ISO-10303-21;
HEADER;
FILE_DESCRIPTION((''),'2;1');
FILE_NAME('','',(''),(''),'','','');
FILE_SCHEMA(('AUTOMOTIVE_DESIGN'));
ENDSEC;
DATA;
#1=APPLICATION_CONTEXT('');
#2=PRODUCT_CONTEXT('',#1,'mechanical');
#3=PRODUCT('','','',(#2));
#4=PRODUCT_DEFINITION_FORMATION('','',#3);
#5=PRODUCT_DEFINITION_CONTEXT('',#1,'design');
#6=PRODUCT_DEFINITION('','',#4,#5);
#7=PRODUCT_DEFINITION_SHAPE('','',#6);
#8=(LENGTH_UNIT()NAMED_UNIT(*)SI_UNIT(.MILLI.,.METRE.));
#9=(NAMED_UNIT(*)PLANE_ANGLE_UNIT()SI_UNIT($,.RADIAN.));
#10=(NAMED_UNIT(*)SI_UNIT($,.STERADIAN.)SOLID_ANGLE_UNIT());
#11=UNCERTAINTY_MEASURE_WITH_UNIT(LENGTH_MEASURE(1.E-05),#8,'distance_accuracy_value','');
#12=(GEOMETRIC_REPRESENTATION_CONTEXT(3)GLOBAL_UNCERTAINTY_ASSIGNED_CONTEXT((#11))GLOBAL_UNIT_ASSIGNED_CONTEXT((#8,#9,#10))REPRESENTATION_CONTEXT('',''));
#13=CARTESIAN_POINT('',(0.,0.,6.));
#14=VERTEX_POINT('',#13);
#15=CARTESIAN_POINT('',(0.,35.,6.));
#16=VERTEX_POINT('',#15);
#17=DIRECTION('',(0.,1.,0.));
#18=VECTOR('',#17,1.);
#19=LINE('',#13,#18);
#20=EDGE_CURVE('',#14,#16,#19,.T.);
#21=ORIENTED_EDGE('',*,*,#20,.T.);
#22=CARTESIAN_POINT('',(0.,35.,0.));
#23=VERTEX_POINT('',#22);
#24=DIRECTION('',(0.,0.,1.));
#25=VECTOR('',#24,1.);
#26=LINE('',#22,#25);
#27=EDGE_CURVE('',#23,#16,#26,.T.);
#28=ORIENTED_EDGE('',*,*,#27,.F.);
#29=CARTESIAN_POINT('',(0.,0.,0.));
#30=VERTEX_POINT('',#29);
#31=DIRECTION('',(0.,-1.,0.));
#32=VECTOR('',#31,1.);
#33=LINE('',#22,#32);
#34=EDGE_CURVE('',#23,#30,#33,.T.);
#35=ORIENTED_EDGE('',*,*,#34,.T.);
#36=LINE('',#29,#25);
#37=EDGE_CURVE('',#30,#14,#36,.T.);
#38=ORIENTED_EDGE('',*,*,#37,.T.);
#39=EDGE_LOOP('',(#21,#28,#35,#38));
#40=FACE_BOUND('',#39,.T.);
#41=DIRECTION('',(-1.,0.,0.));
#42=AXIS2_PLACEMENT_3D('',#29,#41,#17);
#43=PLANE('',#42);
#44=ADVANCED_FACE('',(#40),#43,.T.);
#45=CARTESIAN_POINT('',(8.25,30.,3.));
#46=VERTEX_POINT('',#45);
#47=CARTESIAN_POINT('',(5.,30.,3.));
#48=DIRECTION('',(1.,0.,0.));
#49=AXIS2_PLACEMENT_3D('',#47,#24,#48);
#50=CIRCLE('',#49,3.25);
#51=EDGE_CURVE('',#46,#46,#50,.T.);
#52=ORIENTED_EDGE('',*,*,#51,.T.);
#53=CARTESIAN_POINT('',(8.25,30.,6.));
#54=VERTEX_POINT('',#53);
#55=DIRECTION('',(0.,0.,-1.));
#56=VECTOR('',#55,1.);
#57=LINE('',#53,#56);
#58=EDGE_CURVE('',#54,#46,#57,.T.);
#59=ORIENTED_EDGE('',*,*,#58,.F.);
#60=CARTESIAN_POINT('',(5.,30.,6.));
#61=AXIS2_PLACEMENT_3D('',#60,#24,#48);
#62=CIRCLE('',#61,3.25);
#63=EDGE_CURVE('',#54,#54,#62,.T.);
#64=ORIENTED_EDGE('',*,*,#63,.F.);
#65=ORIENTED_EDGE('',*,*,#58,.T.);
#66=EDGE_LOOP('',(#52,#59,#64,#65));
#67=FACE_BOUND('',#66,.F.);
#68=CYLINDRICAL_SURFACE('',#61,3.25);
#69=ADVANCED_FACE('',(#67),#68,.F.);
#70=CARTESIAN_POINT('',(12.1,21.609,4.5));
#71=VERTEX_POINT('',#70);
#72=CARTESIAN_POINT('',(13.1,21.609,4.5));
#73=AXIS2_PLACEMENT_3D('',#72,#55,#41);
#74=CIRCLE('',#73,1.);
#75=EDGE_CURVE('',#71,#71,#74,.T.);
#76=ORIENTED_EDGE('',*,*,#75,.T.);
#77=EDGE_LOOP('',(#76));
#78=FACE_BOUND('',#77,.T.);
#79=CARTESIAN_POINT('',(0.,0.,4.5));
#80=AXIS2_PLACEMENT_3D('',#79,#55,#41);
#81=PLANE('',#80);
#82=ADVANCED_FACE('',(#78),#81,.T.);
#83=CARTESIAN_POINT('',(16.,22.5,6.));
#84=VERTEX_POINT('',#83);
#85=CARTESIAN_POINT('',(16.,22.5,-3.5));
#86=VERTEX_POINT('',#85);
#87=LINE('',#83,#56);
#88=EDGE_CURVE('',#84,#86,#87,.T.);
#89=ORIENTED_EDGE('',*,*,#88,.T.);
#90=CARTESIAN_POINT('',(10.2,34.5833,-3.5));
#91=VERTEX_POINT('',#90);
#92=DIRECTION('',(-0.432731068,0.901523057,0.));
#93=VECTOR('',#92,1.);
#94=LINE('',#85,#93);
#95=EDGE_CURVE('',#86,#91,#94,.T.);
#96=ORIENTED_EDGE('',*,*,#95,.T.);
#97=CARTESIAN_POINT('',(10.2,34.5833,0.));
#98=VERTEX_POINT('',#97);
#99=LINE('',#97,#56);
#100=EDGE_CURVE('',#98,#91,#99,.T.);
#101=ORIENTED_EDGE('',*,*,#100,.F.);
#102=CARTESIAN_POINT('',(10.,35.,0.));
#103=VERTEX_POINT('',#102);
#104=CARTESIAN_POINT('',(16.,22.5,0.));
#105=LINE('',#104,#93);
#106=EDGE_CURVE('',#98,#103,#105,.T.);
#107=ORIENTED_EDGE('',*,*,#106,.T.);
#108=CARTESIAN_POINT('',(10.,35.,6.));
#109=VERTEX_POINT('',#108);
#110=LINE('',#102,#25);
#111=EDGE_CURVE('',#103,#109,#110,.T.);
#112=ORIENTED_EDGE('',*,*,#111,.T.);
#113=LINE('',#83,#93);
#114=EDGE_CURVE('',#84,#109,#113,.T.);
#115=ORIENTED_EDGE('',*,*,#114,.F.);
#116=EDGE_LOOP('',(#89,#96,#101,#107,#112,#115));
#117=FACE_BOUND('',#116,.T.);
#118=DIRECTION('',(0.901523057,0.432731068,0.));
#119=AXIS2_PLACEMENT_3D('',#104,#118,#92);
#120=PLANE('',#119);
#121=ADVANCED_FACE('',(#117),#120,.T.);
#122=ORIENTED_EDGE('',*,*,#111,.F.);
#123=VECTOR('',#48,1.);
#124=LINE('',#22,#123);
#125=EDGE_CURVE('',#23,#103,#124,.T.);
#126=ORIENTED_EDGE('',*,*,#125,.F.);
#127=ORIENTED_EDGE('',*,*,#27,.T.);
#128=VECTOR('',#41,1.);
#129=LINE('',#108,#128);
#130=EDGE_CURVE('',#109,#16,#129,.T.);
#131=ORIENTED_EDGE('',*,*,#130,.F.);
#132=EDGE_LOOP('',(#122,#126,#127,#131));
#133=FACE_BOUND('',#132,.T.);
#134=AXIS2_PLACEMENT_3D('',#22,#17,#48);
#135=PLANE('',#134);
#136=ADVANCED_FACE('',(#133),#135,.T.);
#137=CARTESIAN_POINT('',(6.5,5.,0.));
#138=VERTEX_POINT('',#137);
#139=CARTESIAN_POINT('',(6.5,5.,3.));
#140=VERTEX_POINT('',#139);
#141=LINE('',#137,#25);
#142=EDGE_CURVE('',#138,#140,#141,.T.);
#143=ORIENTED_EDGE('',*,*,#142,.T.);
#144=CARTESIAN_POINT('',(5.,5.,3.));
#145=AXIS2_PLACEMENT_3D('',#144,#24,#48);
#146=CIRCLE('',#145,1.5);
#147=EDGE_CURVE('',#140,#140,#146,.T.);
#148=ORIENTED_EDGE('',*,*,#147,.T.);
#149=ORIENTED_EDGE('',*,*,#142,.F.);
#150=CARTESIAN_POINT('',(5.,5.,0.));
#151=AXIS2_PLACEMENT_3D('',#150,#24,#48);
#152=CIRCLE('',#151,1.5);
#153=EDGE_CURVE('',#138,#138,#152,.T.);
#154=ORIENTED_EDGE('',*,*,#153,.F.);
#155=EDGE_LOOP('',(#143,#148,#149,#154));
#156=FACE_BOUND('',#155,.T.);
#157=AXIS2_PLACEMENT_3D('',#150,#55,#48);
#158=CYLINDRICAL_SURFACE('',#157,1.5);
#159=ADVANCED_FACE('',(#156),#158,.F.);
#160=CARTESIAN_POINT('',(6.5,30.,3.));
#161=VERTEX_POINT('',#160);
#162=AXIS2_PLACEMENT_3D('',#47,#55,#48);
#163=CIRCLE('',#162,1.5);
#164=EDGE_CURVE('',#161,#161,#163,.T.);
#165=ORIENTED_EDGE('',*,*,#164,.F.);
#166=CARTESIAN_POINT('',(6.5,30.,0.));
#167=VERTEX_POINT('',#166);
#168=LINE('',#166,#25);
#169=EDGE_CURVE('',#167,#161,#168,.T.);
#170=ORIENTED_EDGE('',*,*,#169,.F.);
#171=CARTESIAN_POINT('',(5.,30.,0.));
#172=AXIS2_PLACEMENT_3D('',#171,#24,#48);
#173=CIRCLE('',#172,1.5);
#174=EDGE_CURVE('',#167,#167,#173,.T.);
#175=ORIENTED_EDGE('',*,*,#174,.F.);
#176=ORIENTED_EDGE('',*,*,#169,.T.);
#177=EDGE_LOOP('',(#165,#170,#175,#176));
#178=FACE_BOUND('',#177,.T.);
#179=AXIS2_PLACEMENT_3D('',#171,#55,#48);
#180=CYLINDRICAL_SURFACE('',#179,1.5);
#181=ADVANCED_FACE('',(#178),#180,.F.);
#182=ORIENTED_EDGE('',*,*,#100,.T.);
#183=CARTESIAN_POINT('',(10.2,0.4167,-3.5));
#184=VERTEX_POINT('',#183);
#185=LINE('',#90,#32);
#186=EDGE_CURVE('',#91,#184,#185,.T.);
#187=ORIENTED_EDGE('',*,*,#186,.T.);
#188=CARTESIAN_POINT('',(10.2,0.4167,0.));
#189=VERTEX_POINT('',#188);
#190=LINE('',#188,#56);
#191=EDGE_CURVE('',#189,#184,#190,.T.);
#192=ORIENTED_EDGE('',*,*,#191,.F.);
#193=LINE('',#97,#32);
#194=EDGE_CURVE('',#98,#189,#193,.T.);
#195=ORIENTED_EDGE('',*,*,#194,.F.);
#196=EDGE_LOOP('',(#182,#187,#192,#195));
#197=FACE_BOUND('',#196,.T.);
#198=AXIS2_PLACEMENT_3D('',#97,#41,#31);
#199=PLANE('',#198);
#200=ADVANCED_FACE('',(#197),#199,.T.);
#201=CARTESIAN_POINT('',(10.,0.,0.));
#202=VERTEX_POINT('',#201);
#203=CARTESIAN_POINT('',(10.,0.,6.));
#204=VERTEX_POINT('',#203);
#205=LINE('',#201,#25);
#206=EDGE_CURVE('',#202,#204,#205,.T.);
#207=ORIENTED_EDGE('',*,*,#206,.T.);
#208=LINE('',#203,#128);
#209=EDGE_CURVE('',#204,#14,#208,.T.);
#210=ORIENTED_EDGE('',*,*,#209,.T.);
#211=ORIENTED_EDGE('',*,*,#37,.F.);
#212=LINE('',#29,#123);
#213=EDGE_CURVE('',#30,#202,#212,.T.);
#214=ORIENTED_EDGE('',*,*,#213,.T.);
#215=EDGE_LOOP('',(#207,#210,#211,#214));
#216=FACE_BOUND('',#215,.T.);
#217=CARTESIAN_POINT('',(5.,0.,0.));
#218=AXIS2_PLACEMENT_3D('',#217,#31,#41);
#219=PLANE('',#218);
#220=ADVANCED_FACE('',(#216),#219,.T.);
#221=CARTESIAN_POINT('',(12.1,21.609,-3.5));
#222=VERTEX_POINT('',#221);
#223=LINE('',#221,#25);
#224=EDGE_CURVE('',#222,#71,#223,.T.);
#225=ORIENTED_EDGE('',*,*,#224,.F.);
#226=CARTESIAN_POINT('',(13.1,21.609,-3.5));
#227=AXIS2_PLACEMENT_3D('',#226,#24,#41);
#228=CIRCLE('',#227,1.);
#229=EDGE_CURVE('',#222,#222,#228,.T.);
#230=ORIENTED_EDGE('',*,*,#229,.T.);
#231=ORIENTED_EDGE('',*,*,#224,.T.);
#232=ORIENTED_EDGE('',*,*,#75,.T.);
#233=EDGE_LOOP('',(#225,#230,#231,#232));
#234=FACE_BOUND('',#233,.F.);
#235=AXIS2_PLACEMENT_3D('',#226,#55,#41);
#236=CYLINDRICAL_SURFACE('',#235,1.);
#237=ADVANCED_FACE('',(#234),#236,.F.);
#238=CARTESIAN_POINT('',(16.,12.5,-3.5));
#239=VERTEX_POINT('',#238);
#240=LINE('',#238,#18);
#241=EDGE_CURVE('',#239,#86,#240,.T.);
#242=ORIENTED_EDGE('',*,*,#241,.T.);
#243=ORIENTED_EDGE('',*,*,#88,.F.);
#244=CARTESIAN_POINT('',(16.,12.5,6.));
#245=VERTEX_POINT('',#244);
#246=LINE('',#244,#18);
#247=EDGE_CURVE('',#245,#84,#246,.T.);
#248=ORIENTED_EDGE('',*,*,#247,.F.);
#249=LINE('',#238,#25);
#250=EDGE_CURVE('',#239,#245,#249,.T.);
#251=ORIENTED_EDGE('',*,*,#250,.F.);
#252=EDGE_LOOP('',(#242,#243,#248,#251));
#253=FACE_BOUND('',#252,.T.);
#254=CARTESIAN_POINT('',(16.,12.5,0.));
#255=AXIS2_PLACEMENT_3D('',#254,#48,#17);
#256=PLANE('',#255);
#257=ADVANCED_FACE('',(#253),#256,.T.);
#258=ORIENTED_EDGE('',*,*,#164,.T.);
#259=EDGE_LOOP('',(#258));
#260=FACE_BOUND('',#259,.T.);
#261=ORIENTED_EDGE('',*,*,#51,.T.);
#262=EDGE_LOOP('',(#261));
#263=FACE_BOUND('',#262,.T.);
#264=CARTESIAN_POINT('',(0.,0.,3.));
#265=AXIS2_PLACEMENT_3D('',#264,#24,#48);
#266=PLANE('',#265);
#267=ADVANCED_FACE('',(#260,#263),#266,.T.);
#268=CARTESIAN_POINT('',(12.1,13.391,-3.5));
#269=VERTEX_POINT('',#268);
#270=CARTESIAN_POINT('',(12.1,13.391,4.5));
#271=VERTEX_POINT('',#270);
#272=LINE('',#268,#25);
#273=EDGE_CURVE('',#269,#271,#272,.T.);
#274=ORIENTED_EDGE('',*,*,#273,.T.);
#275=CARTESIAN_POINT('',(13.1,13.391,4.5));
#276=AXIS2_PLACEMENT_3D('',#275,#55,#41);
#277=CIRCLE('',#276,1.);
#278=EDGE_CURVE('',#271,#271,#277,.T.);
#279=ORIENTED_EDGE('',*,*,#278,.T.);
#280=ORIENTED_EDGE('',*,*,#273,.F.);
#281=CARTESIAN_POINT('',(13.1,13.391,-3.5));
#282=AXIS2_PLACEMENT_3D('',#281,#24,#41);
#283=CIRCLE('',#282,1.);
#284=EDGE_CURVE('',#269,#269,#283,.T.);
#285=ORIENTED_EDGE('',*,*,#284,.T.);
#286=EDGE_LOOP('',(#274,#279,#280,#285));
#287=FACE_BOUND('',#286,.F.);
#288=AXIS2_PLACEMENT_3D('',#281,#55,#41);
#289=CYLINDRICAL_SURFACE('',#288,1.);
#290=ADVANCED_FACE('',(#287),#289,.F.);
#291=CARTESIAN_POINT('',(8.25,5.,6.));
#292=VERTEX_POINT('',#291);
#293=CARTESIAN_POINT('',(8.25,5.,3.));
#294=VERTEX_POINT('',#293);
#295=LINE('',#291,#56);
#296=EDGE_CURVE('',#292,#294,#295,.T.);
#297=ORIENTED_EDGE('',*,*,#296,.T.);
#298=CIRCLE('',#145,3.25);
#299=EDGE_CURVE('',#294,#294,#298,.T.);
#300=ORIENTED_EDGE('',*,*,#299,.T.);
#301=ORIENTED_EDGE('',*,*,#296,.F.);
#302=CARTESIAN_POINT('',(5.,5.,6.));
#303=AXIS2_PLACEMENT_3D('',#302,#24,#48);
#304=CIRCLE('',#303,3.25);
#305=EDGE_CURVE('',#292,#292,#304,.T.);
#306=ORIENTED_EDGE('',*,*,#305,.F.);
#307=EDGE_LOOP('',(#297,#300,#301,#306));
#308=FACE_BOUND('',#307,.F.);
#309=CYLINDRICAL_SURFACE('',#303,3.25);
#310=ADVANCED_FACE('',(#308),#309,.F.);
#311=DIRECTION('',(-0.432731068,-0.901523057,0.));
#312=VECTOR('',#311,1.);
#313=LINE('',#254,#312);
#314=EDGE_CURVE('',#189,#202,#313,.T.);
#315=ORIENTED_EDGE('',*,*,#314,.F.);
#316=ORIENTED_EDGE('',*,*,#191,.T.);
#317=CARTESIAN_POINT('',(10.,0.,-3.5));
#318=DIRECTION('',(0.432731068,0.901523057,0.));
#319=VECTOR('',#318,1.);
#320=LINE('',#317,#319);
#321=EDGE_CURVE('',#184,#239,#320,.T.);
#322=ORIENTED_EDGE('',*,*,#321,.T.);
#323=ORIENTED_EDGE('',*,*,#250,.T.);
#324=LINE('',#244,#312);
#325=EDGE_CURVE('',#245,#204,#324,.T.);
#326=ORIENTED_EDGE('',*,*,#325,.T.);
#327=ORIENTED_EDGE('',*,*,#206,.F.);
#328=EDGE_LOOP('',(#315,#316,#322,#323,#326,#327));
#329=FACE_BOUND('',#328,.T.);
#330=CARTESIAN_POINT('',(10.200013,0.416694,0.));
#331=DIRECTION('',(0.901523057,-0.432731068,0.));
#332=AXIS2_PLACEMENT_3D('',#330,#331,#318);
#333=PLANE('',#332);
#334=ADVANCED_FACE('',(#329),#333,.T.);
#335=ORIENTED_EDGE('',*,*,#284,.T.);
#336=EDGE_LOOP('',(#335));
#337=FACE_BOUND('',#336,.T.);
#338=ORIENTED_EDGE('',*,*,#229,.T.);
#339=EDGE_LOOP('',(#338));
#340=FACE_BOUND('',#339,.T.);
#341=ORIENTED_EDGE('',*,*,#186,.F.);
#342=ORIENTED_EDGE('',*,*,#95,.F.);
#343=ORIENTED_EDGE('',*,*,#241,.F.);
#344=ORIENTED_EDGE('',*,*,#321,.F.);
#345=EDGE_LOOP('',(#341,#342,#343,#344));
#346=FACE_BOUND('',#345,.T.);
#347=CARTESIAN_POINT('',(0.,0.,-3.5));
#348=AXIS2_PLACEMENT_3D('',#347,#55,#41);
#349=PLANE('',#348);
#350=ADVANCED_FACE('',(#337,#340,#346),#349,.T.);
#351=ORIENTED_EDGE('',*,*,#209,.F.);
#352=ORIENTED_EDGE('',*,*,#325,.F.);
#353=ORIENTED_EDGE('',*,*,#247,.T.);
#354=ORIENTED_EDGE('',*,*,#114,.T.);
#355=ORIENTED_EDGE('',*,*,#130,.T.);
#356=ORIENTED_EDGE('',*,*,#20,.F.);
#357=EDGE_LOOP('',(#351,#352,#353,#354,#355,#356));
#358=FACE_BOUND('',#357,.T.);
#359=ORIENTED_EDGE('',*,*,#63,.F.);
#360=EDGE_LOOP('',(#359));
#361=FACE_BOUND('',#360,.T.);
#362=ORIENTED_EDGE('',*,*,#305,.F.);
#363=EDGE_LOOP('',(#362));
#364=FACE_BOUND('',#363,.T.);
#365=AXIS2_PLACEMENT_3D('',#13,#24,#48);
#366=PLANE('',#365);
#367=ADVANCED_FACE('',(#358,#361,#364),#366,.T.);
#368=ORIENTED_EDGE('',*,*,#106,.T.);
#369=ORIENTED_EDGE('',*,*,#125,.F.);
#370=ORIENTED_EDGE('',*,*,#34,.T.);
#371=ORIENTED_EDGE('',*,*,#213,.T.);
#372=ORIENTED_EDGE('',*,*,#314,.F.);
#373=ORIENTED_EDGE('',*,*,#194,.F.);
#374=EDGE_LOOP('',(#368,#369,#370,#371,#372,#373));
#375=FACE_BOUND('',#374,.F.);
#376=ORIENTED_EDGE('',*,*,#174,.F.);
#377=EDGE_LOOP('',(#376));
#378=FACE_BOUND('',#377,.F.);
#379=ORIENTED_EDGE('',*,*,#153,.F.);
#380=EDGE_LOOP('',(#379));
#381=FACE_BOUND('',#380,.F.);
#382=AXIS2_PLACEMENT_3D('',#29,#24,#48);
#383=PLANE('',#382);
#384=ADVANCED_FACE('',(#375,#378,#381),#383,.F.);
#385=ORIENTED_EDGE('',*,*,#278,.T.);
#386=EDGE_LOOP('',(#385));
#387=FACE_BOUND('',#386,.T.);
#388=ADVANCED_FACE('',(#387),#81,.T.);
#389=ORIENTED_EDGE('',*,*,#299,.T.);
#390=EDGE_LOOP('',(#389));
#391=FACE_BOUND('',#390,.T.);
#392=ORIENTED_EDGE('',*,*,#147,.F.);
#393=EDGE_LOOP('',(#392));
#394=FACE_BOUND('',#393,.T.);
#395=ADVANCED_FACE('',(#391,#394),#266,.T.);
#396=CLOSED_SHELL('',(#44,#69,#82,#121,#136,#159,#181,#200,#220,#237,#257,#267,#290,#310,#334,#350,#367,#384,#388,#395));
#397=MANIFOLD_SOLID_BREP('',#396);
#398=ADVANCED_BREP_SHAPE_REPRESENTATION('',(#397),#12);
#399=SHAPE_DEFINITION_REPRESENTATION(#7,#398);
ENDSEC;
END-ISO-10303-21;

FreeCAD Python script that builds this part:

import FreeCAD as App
import Part
import Sketcher
Q = App.Units.Quantity

doc = App.newDocument("Part")
params = doc.addObject("Spreadsheet::Sheet", "Params")
for row, (alias, value) in enumerate([
    ("sketch1_diameter", "3 mm"),
    ("sketch1_width", "10 mm"),
    ("pad1_length", "6 mm"),
    ("sketch2_height", "10 mm"),
    ("pad2_length", "3.5 mm"),
    ("sketch3_diameter", "6.5 mm"),
    ("sketch3_diameter2", "3 mm"),
    ("pocket1_length", "3 mm"),
    ("sketch4_diameter", "2 mm"),
    ("pocket2_length", "8 mm"),
], start=1):
    params.set(f"A{row}", alias)
    params.set(f"B{row}", "=" + value)
    params.setAlias(f"B{row}", alias)

body = doc.addObject("PartDesign::Body", "Body")

sketch1 = body.newObject("Sketcher::SketchObject", "Sketch")
sketch1.AttachmentSupport = (doc.getObject("XY_Plane"), [""])
sketch1.MapMode = "FlatFace"
sketch1.addGeometry(Part.LineSegment(App.Vector(0, 0, 0), App.Vector(10, 0, 0)), False)
sketch1.addGeometry(Part.LineSegment(App.Vector(10, 0, 0), App.Vector(16, 12.5, 0)), False)
sketch1.addGeometry(Part.LineSegment(App.Vector(16, 12.5, 0), App.Vector(16, 22.5, 0)), False)
sketch1.addGeometry(Part.LineSegment(App.Vector(16, 22.5, 0), App.Vector(10, 35, 0)), False)
sketch1.addGeometry(Part.LineSegment(App.Vector(10, 35, 0), App.Vector(0, 35, 0)), False)
sketch1.addGeometry(Part.LineSegment(App.Vector(0, 35, 0), App.Vector(0, 0, 0)), False)
sketch1.addGeometry(Part.Circle(App.Vector(5, 30, 0), App.Vector(0, 0, 1), 1.5), False)
sketch1.addGeometry(Part.Circle(App.Vector(5, 5, 0), App.Vector(0, 0, 1), 1.5), False)
sketch1.addConstraint(Sketcher.Constraint("Coincident", 0, 2, 1, 1))
sketch1.addConstraint(Sketcher.Constraint("Coincident", 1, 2, 2, 1))
sketch1.addConstraint(Sketcher.Constraint("Coincident", 2, 2, 3, 1))
sketch1.addConstraint(Sketcher.Constraint("Coincident", 3, 2, 4, 1))
sketch1.addConstraint(Sketcher.Constraint("Coincident", 4, 2, 5, 1))
sketch1.addConstraint(Sketcher.Constraint("Coincident", 5, 2, 0, 1))
sketch1.addConstraint(Sketcher.Constraint("Horizontal", 0))
sketch1.addConstraint(Sketcher.Constraint("Vertical", 2))
sketch1.addConstraint(Sketcher.Constraint("Horizontal", 4))
sketch1.addConstraint(Sketcher.Constraint("Vertical", 5))
sketch1.addConstraint(Sketcher.Constraint("Coincident", 5, 2, -1, 1))
sketch1.addConstraint(Sketcher.Constraint("Equal", 6, 7))
sketch1.addConstraint(Sketcher.Constraint("Vertical", 6, 3, 7, 3))
sketch1.addConstraint(Sketcher.Constraint("Vertical", 0, 2, 3, 2))
sketch1.addConstraint(Sketcher.Constraint("Equal", 4, 2))
sketch1.addConstraint(Sketcher.Constraint("Equal", 1, 3))
sketch1.addConstraint(Sketcher.Constraint("Diameter", 6, 3.0))
sketch1.addConstraint(Sketcher.Constraint("DistanceX", 0, 1, 0, 2, 10.0))
sketch1.addConstraint(Sketcher.Constraint("DistanceX", -1, 1, 6, 3, 5.0))
sketch1.addConstraint(Sketcher.Constraint("DistanceY", -1, 1, 7, 3, 5.0))
sketch1.addConstraint(Sketcher.Constraint("DistanceY", 7, 3, 6, 3, 25.0))
sketch1.addConstraint(Sketcher.Constraint("DistanceX", 0, 2, 1, 2, 6.0))
sketch1.addConstraint(Sketcher.Constraint("DistanceY", 6, 3, 3, 2, 5.0))
sketch1.setExpression("Constraints[16]", "Params.sketch1_diameter")
sketch1.setExpression("Constraints[17]", "Params.sketch1_width")
pad1 = body.newObject("PartDesign::Pad", "Pad")
pad1.Profile = sketch1
pad1.setExpression("Length", "Params.pad1_length")

sketch2 = body.newObject("Sketcher::SketchObject", "Sketch001")
sketch2.AttachmentSupport = (doc.getObject("XY_Plane"), [""])
sketch2.MapMode = "FlatFace"
sketch2.addGeometry(Part.LineSegment(App.Vector(10, 0, 0), App.Vector(10, 35, 0)), False)
sketch2.addGeometry(Part.LineSegment(App.Vector(10, 35, 0), App.Vector(16, 22, 0)), False)
sketch2.addGeometry(Part.LineSegment(App.Vector(16, 22, 0), App.Vector(16, 12, 0)), False)
sketch2.addGeometry(Part.LineSegment(App.Vector(16, 12, 0), App.Vector(10, 0, 0)), False)
sketch2.addConstraint(Sketcher.Constraint("Coincident", 0, 2, 1, 1))
sketch2.addConstraint(Sketcher.Constraint("Coincident", 1, 2, 2, 1))
sketch2.addConstraint(Sketcher.Constraint("Coincident", 2, 2, 3, 1))
sketch2.addConstraint(Sketcher.Constraint("Coincident", 3, 2, 0, 1))
sketch2.addConstraint(Sketcher.Constraint("Vertical", 0))
sketch2.addConstraint(Sketcher.Constraint("Vertical", 2))
sketch2.addConstraint(Sketcher.Constraint("Equal", 1, 3))
sketch2.addConstraint(Sketcher.Constraint("DistanceY", 2, 2, 2, 1, 10.0))
sketch2.addConstraint(Sketcher.Constraint("DistanceX", -1, 1, 1, 2, 16.0))
sketch2.addConstraint(Sketcher.Constraint("DistanceX", -1, 1, 0, 2, 10.2))
sketch2.addConstraint(Sketcher.Constraint("DistanceY", -1, 1, 1, 2, 22.5))
sketch2.addConstraint(Sketcher.Constraint("Angle", 1, Q("-64.359 deg")))
sketch2.setExpression("Constraints[7]", "Params.sketch2_height")
pad2 = body.newObject("PartDesign::Pad", "Pad001")
pad2.Profile = sketch2
pad2.setExpression("Length", "Params.pad2_length")
pad2.Reversed = True

sketch3 = body.newObject("Sketcher::SketchObject", "Sketch002")
sketch3.AttachmentSupport = (doc.getObject("XY_Plane"), [""])
sketch3.MapMode = "FlatFace"
sketch3.AttachmentOffset = App.Placement(App.Vector(0, 0, 6), App.Rotation())
sketch3.addGeometry(Part.Circle(App.Vector(5, 30, 0), App.Vector(0, 0, 1), 3.2), False)
sketch3.addGeometry(Part.Circle(App.Vector(5, 5, 0), App.Vector(0, 0, 1), 3.2), False)
sketch3.addGeometry(Part.Circle(App.Vector(5, 5, 0), App.Vector(0, 0, 1), 1.5), False)
sketch3.addConstraint(Sketcher.Constraint("Coincident", 2, 3, 1, 3))
sketch3.addConstraint(Sketcher.Constraint("Equal", 0, 1))
sketch3.addConstraint(Sketcher.Constraint("Vertical", 0, 3, 1, 3))
sketch3.addConstraint(Sketcher.Constraint("Diameter", 0, 6.5))
sketch3.addConstraint(Sketcher.Constraint("Diameter", 2, 3.0))
sketch3.addConstraint(Sketcher.Constraint("DistanceX", -1, 1, 0, 3, 5.0))
sketch3.addConstraint(Sketcher.Constraint("DistanceY", -1, 1, 0, 3, 30.0))
sketch3.addConstraint(Sketcher.Constraint("DistanceY", -1, 1, 1, 3, 5.0))
sketch3.setExpression("Constraints[3]", "Params.sketch3_diameter")
sketch3.setExpression("Constraints[4]", "Params.sketch3_diameter2")
pocket1 = body.newObject("PartDesign::Pocket", "Pocket")
pocket1.Profile = sketch3
pocket1.setExpression("Length", "Params.pocket1_length")

sketch4 = body.newObject("Sketcher::SketchObject", "Sketch003")
sketch4.AttachmentSupport = (doc.getObject("XY_Plane"), [""])
sketch4.MapMode = "FlatFace"
sketch4.AttachmentOffset = App.Placement(App.Vector(0, 0, -3.5), App.Rotation())
sketch4.addGeometry(Part.Circle(App.Vector(13.1, 21.6, 0), App.Vector(0, 0, 1), 1), False)
sketch4.addGeometry(Part.Circle(App.Vector(13.1, 13.4, 0), App.Vector(0, 0, 1), 1), False)
sketch4.addConstraint(Sketcher.Constraint("Equal", 0, 1))
sketch4.addConstraint(Sketcher.Constraint("Vertical", 0, 3, 1, 3))
sketch4.addConstraint(Sketcher.Constraint("Diameter", 0, 2.0))
sketch4.addConstraint(Sketcher.Constraint("DistanceY", 1, 3, 0, 3, 8.218))
sketch4.addConstraint(Sketcher.Constraint("DistanceX", -1, 1, 0, 3, 13.1))
sketch4.addConstraint(Sketcher.Constraint("DistanceY", -1, 1, 0, 3, 21.609))
sketch4.setExpression("Constraints[2]", "Params.sketch4_diameter")
pocket2 = body.newObject("PartDesign::Pocket", "Pocket001")
pocket2.Profile = sketch4
pocket2.setExpression("Length", "Params.pocket2_length")
pocket2.Reversed = True

doc.recompute()
